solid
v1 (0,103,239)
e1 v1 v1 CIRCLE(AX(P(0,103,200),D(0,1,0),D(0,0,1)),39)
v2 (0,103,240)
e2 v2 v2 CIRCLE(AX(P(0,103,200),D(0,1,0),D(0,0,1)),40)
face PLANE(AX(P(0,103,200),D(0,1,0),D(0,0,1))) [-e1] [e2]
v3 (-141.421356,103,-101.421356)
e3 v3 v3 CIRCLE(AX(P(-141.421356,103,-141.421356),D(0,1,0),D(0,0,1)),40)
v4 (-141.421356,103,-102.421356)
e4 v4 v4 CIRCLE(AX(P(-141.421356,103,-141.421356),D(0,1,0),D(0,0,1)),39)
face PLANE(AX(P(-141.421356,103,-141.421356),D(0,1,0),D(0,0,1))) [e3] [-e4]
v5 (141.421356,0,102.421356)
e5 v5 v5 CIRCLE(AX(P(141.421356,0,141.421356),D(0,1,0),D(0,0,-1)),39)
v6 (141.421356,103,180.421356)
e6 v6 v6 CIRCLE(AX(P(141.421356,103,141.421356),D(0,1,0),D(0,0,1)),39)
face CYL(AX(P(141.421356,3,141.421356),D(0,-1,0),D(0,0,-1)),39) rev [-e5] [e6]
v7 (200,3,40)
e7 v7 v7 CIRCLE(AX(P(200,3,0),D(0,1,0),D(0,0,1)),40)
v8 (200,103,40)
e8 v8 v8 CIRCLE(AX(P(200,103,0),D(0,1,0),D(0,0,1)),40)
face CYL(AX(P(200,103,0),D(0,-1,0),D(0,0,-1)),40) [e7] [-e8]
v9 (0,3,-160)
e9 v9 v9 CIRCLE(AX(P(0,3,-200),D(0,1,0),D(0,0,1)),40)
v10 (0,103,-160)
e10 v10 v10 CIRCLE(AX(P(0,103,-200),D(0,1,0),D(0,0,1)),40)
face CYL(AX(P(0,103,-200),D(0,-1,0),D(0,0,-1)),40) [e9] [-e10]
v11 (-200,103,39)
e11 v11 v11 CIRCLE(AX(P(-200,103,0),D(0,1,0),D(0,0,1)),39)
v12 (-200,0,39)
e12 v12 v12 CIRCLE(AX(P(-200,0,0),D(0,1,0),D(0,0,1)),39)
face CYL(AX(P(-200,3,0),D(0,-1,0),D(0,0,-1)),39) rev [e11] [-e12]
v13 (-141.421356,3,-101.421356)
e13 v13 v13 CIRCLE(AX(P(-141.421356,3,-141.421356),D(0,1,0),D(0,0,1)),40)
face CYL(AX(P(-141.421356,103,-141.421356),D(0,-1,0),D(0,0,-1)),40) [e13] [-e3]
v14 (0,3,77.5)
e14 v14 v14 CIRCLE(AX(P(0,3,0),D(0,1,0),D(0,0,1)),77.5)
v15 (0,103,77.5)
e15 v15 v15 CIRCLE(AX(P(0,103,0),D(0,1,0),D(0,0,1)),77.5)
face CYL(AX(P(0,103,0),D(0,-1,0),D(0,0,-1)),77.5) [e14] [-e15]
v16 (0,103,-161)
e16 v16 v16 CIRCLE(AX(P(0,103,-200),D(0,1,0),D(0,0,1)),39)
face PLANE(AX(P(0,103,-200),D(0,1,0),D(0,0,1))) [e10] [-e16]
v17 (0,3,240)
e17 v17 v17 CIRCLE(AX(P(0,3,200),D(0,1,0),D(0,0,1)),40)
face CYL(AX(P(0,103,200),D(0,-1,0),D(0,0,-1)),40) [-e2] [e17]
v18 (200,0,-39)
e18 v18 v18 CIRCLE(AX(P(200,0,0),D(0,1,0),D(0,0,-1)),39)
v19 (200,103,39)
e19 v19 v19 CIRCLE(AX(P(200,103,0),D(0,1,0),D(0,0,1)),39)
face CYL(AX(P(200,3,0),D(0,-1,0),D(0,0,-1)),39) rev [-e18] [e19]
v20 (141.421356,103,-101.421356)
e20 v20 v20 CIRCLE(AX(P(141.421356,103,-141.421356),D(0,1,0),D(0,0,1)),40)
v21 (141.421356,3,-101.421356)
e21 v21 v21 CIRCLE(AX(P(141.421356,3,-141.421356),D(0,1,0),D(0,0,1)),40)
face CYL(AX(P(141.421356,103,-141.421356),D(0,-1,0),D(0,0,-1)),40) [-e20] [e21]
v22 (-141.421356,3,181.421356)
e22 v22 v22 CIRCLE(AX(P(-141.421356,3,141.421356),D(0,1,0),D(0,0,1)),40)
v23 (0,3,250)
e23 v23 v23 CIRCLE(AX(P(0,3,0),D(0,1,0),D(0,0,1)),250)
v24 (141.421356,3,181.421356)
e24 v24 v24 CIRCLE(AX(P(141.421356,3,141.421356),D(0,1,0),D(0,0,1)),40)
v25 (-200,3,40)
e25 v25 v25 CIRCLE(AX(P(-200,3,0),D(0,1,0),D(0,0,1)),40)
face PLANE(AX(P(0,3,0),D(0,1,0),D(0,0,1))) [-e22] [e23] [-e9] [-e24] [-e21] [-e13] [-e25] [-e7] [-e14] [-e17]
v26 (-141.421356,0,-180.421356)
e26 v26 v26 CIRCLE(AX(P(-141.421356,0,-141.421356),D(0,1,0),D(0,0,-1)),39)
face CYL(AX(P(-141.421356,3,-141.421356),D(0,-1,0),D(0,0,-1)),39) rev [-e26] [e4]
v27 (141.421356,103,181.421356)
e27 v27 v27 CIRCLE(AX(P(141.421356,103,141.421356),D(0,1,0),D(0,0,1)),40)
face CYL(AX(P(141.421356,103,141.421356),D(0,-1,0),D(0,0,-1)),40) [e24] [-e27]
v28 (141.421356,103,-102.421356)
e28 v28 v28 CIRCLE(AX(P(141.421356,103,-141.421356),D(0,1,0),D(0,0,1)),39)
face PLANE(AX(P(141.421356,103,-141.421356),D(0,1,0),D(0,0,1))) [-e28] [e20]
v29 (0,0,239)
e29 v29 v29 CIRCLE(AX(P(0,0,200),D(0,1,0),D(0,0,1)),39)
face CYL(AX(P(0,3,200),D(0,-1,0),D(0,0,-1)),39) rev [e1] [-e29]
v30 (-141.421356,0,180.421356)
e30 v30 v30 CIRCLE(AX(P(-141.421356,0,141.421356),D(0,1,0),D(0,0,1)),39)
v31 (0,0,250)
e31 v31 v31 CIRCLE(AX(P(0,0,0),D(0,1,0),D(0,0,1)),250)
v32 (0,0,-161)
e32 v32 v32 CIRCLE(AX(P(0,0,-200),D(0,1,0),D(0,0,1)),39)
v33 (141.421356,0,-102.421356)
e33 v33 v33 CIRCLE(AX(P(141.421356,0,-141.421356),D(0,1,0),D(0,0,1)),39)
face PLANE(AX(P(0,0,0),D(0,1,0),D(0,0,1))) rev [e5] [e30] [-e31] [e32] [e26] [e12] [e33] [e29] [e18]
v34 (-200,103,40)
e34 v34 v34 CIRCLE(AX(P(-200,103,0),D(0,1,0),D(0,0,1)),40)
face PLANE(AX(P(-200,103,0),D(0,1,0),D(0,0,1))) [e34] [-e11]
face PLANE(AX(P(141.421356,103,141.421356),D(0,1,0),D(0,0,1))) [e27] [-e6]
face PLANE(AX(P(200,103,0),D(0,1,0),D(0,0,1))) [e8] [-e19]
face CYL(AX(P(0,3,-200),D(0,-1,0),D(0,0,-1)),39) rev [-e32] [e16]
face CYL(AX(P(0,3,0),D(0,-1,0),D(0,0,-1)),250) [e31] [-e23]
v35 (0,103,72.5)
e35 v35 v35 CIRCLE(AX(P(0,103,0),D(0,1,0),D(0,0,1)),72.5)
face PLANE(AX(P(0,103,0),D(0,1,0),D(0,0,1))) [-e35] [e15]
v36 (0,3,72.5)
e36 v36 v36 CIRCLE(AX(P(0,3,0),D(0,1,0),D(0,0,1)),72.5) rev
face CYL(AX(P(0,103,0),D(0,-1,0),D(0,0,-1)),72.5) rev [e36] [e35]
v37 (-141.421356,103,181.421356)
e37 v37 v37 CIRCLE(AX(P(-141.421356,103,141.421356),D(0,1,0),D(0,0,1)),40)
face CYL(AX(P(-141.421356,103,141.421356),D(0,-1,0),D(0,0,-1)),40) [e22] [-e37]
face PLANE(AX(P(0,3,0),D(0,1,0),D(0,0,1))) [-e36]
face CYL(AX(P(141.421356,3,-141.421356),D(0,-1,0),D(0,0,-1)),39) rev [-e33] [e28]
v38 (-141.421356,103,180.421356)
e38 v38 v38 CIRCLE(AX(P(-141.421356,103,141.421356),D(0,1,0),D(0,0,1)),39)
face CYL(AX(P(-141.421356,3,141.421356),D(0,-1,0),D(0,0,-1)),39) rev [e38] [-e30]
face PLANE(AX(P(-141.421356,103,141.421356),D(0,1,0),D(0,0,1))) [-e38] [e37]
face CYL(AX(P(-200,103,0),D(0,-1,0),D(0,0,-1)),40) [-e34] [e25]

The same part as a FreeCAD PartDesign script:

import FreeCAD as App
import Part
import Sketcher

V = App.Vector
Q = App.Units.Quantity

doc = App.newDocument("Part")
body = doc.addObject("PartDesign::Body", "Body")

# Sketch on XZ plane
sketch1 = body.newObject("Sketcher::SketchObject", "Sketch")
sketch1.AttachmentSupport = (doc.getObject("XZ_Plane"), [""])
sketch1.MapMode = "FlatFace"
sketch1.addGeometry(Part.Circle(V(0, 0, 0), V(0, 0, 1), 250), False)
sketch1.addGeometry(Part.Circle(V(-141, -141, 0), V(0, 0, 1), 39), False)
sketch1.addGeometry(Part.Circle(V(0, -200, 0), V(0, 0, 1), 39), False)
sketch1.addGeometry(Part.Circle(V(-200, 0, 0), V(0, 0, 1), 39), False)
sketch1.addGeometry(Part.Circle(V(-141, 141, 0), V(0, 0, 1), 39), False)
sketch1.addGeometry(Part.Circle(V(141, -141, 0), V(0, 0, 1), 39), False)
sketch1.addGeometry(Part.Circle(V(200, 0, 0), V(0, 0, 1), 39), False)
sketch1.addGeometry(Part.Circle(V(0, 200, 0), V(0, 0, 1), 39), False)
sketch1.addGeometry(Part.Circle(V(141, 141, 0), V(0, 0, 1), 39), False)
sketch1.addConstraint(Sketcher.Constraint("Coincident", 0, 3, -1, 1))
sketch1.addConstraint(Sketcher.Constraint("Equal", 1, 2))
sketch1.addConstraint(Sketcher.Constraint("Equal", 2, 3))
sketch1.addConstraint(Sketcher.Constraint("Equal", 3, 4))
sketch1.addConstraint(Sketcher.Constraint("Equal", 4, 5))
sketch1.addConstraint(Sketcher.Constraint("Equal", 5, 6))
sketch1.addConstraint(Sketcher.Constraint("Equal", 6, 7))
sketch1.addConstraint(Sketcher.Constraint("Equal", 7, 8))
sketch1.addConstraint(Sketcher.Constraint("Symmetric", 4, 3, 5, 3, -1, 1))
sketch1.addConstraint(Sketcher.Constraint("Symmetric", 3, 3, 6, 3, -1, 1))
sketch1.addConstraint(Sketcher.Constraint("Symmetric", 2, 3, 7, 3, -1, 1))
sketch1.addConstraint(Sketcher.Constraint("Symmetric", 1, 3, 8, 3, -1, 1))
sketch1.addConstraint(Sketcher.Constraint("Symmetric", 1, 3, 5, 3, -2))
sketch1.addConstraint(Sketcher.Constraint("PointOnObject", 2, 3, -2))
sketch1.addConstraint(Sketcher.Constraint("PointOnObject", 3, 3, -1))
sketch1.addConstraint(Sketcher.Constraint("Diameter", 0, Q("500 mm")))
sketch1.addConstraint(Sketcher.Constraint("Diameter", 1, Q("78 mm")))
sketch1.addConstraint(Sketcher.Constraint("DistanceY", 2, 3, -1, 1, Q("200 mm")))
sketch1.addConstraint(Sketcher.Constraint("DistanceX", 3, 3, -1, 1, Q("200 mm")))
sketch1.addConstraint(Sketcher.Constraint("DistanceX", 1, 3, -1, 1, Q("141.421356 mm")))
sketch1.addConstraint(Sketcher.Constraint("DistanceY", 1, 3, -1, 1, Q("141.421356 mm")))
pad1 = body.newObject("PartDesign::Pad", "Pad")
pad1.Profile = sketch1
pad1.Length = 3
pad1.Reversed = True

# Sketch on XZ plane
sketch2 = body.newObject("Sketcher::SketchObject", "Sketch001")
sketch2.AttachmentSupport = (doc.getObject("XZ_Plane"), [""])
sketch2.MapMode = "FlatFace"
sketch2.AttachmentOffset = App.Placement(V(0, 0, -3), App.Rotation())
sketch2.addGeometry(Part.Circle(V(0, -200, 0), V(0, 0, 1), 40), False)
sketch2.addGeometry(Part.Circle(V(0, -200, 0), V(0, 0, 1), 39), False)
sketch2.addGeometry(Part.Circle(V(141, -141, 0), V(0, 0, 1), 40), False)
sketch2.addGeometry(Part.Circle(V(141, -141, 0), V(0, 0, 1), 39), False)
sketch2.addGeometry(Part.Circle(V(200, 0, 0), V(0, 0, 1), 40), False)
sketch2.addGeometry(Part.Circle(V(200, 0, 0), V(0, 0, 1), 39), False)
sketch2.addGeometry(Part.Circle(V(141, 141, 0), V(0, 0, 1), 40), False)
sketch2.addGeometry(Part.Circle(V(141, 141, 0), V(0, 0, 1), 39), False)
sketch2.addGeometry(Part.Circle(V(0, 200, 0), V(0, 0, 1), 40), False)
sketch2.addGeometry(Part.Circle(V(0, 200, 0), V(0, 0, 1), 39), False)
sketch2.addGeometry(Part.Circle(V(-141, 141, 0), V(0, 0, 1), 40), False)
sketch2.addGeometry(Part.Circle(V(-141, 141, 0), V(0, 0, 1), 39), False)
sketch2.addGeometry(Part.Circle(V(-200, 0, 0), V(0, 0, 1), 40), False)
sketch2.addGeometry(Part.Circle(V(-200, 0, 0), V(0, 0, 1), 39), False)
sketch2.addGeometry(Part.Circle(V(-141, -141, 0), V(0, 0, 1), 40), False)
sketch2.addGeometry(Part.Circle(V(-141, -141, 0), V(0, 0, 1), 39), False)
sketch2.addConstraint(Sketcher.Constraint("Coincident", 1, 3, 0, 3))
sketch2.addConstraint(Sketcher.Constraint("Coincident", 3, 3, 2, 3))
sketch2.addConstraint(Sketcher.Constraint("Coincident", 5, 3, 4, 3))
sketch2.addConstraint(Sketcher.Constraint("Coincident", 7, 3, 6, 3))
sketch2.addConstraint(Sketcher.Constraint("Coincident", 9, 3, 8, 3))
sketch2.addConstraint(Sketcher.Constraint("Coincident", 11, 3, 10, 3))
sketch2.addConstraint(Sketcher.Constraint("Coincident", 13, 3, 12, 3))
sketch2.addConstraint(Sketcher.Constraint("Coincident", 15, 3, 14, 3))
sketch2.addConstraint(Sketcher.Constraint("Equal", 0, 2))
sketch2.addConstraint(Sketcher.Constraint("Equal", 1, 3))
sketch2.addConstraint(Sketcher.Constraint("Equal", 2, 4))
sketch2.addConstraint(Sketcher.Constraint("Equal", 3, 5))
sketch2.addConstraint(Sketcher.Constraint("Equal", 4, 6))
sketch2.addConstraint(Sketcher.Constraint("Equal", 5, 7))
sketch2.addConstraint(Sketcher.Constraint("Equal", 6, 8))
sketch2.addConstraint(Sketcher.Constraint("Equal", 7, 9))
sketch2.addConstraint(Sketcher.Constraint("Equal", 8, 10))
sketch2.addConstraint(Sketcher.Constraint("Equal", 9, 11))
sketch2.addConstraint(Sketcher.Constraint("Equal", 10, 12))
sketch2.addConstraint(Sketcher.Constraint("Equal", 11, 13))
sketch2.addConstraint(Sketcher.Constraint("Equal", 12, 14))
sketch2.addConstraint(Sketcher.Constraint("Equal", 13, 15))
sketch2.addConstraint(Sketcher.Constraint("Symmetric", 0, 3, 8, 3, -1, 1))
sketch2.addConstraint(Sketcher.Constraint("Symmetric", 2, 3, 10, 3, -1, 1))
sketch2.addConstraint(Sketcher.Constraint("Symmetric", 4, 3, 12, 3, -1, 1))
sketch2.addConstraint(Sketcher.Constraint("Symmetric", 6, 3, 14, 3, -1, 1))
sketch2.addConstraint(Sketcher.Constraint("Symmetric", 6, 3, 10, 3, -2))
sketch2.addConstraint(Sketcher.Constraint("PointOnObject", 0, 3, -2))
sketch2.addConstraint(Sketcher.Constraint("PointOnObject", 4, 3, -1))
sketch2.addConstraint(Sketcher.Constraint("Diameter", 0, Q("80 mm")))
sketch2.addConstraint(Sketcher.Constraint("Diameter", 1, Q("78 mm")))
sketch2.addConstraint(Sketcher.Constraint("DistanceY", 0, 3, -1, 1, Q("200 mm")))
sketch2.addConstraint(Sketcher.Constraint("DistanceX", -1, 1, 4, 3, Q("200 mm")))
sketch2.addConstraint(Sketcher.Constraint("DistanceX", -1, 1, 2, 3, Q("141.421356 mm")))
sketch2.addConstraint(Sketcher.Constraint("DistanceY", 2, 3, -1, 1, Q("141.421356 mm")))
pad2 = body.newObject("PartDesign::Pad", "Pad001")
pad2.Profile = sketch2
pad2.Length = 100
pad2.Reversed = True

# Sketch on XZ plane
sketch3 = body.newObject("Sketcher::SketchObject", "Sketch002")
sketch3.AttachmentSupport = (doc.getObject("XZ_Plane"), [""])
sketch3.MapMode = "FlatFace"
sketch3.AttachmentOffset = App.Placement(V(0, 0, -3), App.Rotation())
sketch3.addGeometry(Part.Circle(V(0, 0, 0), V(0, 0, 1), 78), False)
sketch3.addGeometry(Part.Circle(V(0, 0, 0), V(0, 0, 1), 72), False)
sketch3.addConstraint(Sketcher.Constraint("Coincident", 0, 3, -1, 1))
sketch3.addConstraint(Sketcher.Constraint("Coincident", 1, 3, -1, 1))
sketch3.addConstraint(Sketcher.Constraint("Diameter", 0, Q("155 mm")))
sketch3.addConstraint(Sketcher.Constraint("Diameter", 1, Q("145 mm")))
pad3 = body.newObject("PartDesign::Pad", "Pad002")
pad3.Profile = sketch3
pad3.Length = 100
pad3.Reversed = True

doc.recompute()
